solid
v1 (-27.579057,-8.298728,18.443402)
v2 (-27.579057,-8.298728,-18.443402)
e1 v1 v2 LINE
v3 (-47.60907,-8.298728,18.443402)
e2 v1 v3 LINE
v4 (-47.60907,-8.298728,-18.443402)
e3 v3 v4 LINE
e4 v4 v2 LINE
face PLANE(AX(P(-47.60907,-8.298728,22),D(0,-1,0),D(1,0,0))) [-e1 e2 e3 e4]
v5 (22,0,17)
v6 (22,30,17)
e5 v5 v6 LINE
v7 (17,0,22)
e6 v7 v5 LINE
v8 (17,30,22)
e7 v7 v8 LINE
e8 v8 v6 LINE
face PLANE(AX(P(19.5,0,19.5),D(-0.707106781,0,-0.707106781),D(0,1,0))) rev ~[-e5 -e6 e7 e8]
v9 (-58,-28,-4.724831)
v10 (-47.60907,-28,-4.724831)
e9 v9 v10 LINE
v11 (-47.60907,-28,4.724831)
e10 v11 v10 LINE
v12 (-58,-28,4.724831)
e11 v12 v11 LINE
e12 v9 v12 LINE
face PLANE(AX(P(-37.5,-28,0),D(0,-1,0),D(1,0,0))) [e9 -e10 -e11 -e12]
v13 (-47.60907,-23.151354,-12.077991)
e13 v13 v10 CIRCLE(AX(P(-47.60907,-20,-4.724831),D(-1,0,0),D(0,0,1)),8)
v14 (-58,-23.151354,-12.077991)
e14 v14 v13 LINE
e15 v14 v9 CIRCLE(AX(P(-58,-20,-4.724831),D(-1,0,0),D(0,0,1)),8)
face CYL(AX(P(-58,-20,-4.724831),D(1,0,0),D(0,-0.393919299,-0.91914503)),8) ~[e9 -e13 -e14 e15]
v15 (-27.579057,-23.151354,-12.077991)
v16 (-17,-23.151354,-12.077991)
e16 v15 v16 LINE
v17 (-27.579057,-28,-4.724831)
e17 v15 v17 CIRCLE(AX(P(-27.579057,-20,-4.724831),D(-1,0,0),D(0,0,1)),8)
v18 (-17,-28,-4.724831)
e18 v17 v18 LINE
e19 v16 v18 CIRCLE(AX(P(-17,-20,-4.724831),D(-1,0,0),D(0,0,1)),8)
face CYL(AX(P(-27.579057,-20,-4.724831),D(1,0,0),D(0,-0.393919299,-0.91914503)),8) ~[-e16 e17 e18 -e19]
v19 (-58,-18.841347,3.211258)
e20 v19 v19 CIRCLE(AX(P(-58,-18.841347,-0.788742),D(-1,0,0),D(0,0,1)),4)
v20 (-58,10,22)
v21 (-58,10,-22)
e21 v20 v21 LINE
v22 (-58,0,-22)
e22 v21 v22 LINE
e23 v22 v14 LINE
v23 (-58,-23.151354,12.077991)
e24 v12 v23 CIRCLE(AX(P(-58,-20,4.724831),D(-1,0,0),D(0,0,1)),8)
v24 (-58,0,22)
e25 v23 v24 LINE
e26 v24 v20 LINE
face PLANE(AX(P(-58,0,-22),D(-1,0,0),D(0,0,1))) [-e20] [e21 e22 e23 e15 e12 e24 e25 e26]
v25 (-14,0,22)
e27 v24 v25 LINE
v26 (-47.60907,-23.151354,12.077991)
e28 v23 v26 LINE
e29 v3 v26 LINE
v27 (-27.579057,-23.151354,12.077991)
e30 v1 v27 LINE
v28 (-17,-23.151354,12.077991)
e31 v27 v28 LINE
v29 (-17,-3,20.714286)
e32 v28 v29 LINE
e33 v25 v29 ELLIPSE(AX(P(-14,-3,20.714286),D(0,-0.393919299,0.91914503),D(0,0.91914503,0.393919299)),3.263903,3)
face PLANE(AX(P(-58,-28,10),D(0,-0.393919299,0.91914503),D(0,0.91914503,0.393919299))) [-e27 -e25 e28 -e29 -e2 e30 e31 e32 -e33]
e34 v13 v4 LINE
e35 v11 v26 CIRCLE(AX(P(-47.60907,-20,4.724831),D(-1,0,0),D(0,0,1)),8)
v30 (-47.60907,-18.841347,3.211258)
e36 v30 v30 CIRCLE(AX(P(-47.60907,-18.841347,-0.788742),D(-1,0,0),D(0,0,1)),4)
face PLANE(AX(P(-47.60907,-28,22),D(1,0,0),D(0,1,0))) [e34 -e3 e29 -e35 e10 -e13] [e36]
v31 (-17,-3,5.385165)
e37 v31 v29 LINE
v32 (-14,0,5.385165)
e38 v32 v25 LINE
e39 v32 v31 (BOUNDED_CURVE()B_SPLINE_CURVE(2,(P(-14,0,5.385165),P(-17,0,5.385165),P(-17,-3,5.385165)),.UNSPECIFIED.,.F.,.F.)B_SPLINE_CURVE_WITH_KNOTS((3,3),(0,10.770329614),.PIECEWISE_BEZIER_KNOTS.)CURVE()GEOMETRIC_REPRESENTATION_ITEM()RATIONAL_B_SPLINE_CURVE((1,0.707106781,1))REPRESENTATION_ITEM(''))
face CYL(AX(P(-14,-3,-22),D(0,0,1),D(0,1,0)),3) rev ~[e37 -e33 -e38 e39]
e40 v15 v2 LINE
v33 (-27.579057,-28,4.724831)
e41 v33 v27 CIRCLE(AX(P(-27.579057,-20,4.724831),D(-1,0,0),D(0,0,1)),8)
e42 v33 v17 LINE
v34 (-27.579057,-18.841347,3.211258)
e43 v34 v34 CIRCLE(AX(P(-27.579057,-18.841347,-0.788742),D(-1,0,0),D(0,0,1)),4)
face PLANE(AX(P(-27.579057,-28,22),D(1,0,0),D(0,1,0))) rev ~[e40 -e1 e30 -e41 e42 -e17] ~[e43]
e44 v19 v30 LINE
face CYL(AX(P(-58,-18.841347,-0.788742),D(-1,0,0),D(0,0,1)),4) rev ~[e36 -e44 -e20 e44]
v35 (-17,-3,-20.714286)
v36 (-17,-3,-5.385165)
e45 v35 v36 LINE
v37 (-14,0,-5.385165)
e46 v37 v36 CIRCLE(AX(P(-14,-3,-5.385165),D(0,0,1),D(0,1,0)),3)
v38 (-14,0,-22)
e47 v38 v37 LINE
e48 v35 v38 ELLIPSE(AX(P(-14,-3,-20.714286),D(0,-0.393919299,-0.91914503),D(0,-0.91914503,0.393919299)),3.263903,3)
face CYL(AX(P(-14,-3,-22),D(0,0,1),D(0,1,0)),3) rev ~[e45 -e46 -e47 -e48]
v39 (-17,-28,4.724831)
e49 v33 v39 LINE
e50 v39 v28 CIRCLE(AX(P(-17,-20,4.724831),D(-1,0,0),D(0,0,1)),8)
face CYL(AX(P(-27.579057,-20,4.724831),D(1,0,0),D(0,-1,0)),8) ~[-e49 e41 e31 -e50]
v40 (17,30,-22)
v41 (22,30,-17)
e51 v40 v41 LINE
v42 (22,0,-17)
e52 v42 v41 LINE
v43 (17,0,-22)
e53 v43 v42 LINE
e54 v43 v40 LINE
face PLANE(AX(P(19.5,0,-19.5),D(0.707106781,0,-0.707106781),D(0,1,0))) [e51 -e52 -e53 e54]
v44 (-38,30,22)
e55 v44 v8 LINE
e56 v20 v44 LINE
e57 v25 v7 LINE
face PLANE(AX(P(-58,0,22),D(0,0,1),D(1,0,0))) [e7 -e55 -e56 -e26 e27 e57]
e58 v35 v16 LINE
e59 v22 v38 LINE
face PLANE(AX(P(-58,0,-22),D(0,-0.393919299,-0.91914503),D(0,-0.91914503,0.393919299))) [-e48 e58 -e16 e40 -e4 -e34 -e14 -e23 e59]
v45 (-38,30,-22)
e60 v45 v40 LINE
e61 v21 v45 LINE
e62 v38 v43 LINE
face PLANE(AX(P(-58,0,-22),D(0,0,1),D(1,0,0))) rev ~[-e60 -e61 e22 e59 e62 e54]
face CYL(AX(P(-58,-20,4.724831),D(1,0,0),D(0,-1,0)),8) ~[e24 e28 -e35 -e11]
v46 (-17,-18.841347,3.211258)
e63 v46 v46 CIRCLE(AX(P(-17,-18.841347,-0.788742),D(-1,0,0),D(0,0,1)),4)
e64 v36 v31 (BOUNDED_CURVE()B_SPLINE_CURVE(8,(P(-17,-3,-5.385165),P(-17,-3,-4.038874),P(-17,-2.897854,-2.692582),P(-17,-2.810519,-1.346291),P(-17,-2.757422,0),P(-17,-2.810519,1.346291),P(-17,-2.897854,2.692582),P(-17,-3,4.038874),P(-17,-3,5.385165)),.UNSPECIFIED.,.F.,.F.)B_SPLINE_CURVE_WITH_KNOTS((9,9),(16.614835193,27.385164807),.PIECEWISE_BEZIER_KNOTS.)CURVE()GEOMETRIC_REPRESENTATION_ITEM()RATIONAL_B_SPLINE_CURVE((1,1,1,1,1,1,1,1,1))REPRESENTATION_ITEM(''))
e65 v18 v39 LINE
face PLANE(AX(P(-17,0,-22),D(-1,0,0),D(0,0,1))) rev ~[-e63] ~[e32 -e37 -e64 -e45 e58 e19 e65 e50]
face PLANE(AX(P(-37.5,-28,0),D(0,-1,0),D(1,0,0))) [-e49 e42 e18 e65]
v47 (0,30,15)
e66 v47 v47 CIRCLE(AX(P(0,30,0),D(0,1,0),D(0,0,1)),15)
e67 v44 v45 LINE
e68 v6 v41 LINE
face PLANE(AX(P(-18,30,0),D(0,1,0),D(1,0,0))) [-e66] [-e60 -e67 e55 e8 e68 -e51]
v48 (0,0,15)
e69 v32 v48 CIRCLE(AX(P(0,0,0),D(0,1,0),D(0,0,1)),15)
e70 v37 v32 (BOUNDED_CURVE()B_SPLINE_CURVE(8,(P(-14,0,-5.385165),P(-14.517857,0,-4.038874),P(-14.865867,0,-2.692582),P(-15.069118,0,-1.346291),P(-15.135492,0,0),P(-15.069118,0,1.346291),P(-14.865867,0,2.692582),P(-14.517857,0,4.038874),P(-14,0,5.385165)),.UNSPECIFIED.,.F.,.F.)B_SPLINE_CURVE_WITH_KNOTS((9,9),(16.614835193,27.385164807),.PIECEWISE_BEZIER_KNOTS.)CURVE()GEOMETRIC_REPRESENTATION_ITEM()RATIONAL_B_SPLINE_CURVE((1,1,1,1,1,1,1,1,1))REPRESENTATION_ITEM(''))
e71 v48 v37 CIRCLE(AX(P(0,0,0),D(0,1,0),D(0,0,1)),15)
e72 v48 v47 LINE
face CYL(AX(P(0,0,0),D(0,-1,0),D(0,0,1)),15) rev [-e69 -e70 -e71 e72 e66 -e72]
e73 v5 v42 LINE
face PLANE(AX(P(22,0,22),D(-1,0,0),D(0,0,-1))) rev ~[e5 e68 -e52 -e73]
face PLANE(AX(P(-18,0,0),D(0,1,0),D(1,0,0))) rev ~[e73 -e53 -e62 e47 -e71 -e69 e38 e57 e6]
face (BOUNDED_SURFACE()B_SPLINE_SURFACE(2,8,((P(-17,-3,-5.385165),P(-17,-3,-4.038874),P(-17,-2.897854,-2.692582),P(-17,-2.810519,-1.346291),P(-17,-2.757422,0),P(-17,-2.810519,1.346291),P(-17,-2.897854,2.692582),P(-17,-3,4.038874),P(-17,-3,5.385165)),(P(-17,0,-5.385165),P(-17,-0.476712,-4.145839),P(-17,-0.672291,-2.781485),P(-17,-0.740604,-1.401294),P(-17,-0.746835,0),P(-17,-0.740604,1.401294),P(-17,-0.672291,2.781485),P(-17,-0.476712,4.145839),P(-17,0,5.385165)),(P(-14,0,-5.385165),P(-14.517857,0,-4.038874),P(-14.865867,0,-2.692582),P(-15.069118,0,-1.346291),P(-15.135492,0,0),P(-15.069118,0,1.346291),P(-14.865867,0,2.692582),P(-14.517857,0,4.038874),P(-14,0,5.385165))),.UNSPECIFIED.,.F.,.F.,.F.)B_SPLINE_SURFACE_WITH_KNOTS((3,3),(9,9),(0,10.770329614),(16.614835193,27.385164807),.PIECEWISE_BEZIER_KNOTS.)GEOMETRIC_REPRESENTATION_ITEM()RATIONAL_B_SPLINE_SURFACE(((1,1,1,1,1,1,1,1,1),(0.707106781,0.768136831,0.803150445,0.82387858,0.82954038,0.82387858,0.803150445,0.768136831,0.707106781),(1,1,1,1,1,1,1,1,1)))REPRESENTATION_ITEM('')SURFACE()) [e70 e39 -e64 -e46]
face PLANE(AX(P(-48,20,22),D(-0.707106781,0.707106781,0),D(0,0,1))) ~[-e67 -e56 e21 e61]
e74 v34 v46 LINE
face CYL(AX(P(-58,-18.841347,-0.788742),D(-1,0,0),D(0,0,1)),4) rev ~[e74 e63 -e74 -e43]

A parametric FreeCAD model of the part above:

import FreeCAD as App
import Part
import Sketcher

V = App.Vector


def edges_at(feature, points):
    """Names of the edges that pass closest to the given points."""
    edges = feature.Shape.Edges
    near = lambda p: min(range(len(edges)), key=lambda i: edges[i].distToShape(Part.Vertex(*p))[0])
    return sorted({f"Edge{near(p) + 1}" for p in points})


def add_polygon(sketch, points):
    """Adds a closed chain of lines whose ends are joined by coincident constraints."""
    first, n = sketch.GeometryCount, len(points)
    for a, b in zip(points, points[1:] + points[:1]):
        sketch.addGeometry(Part.LineSegment(App.Vector(*a, 0), App.Vector(*b, 0)), False)
    for i in range(n):
        sketch.addConstraint(Sketcher.Constraint("Coincident", first + i, 2, first + (i + 1) % n, 1))

doc = App.newDocument("Part")
body = doc.addObject("PartDesign::Body", "Body")

# Sketch on XZ plane
sketch1 = body.newObject("Sketcher::SketchObject", "Sketch")
sketch1.AttachmentSupport = (doc.getObject("XZ_Plane"), [""])
sketch1.MapMode = "FlatFace"
add_polygon(sketch1, [(-58, -22), (-58, 22), (22, 22), (22, -22)])  # lines 0-3
sketch1.addGeometry(Part.Circle(V(0, 0, 0), V(0, 0, 1), 15), False)  # 4
sketch1.addConstraint(Sketcher.Constraint("Vertical", 0))
sketch1.addConstraint(Sketcher.Constraint("Horizontal", 1))
sketch1.addConstraint(Sketcher.Constraint("Vertical", 2))
sketch1.addConstraint(Sketcher.Constraint("Horizontal", 3))
sketch1.addConstraint(Sketcher.Constraint("Coincident", 4, 3, -1, 1))
sketch1.addConstraint(Sketcher.Constraint("Diameter", 4, 30.0))
sketch1.addConstraint(Sketcher.Constraint("DistanceX", 1, 1, 1, 2, 80.0))
sketch1.addConstraint(Sketcher.Constraint("DistanceY", 0, 1, 0, 2, 44.0))
sketch1.addConstraint(Sketcher.Constraint("DistanceX", 0, 2, -1, 1, 58.0))
sketch1.addConstraint(Sketcher.Constraint("DistanceY", -1, 1, 0, 2, 22.0))
pad1 = body.newObject("PartDesign::Pad", "Pad")
pad1.Profile = sketch1
pad1.Length = 30
pad1.Reversed = True
doc.recompute()

chamfer = body.newObject("PartDesign::Chamfer", "Chamfer")
chamfer.Base = (pad1, edges_at(pad1, [(-58, 30, 0)]))
chamfer.Size = 20

# Sketch on XZ plane
sketch2 = body.newObject("Sketcher::SketchObject", "Sketch001")
sketch2.AttachmentSupport = (doc.getObject("XZ_Plane"), [""])
sketch2.MapMode = "FlatFace"
add_polygon(sketch2, [(-58, 22), (-58, -22), (-17, -22), (-17, 22)])  # lines 0-3
sketch2.addConstraint(Sketcher.Constraint("Vertical", 0))
sketch2.addConstraint(Sketcher.Constraint("Horizontal", 1))
sketch2.addConstraint(Sketcher.Constraint("Vertical", 2))
sketch2.addConstraint(Sketcher.Constraint("Horizontal", 3))
sketch2.addConstraint(Sketcher.Constraint("DistanceX", 1, 1, 1, 2, 41.0))
sketch2.addConstraint(Sketcher.Constraint("DistanceY", 0, 2, 0, 1, 44.0))
sketch2.addConstraint(Sketcher.Constraint("DistanceX", 0, 2, -1, 1, 58.0))
sketch2.addConstraint(Sketcher.Constraint("DistanceY", 0, 2, -1, 1, 22.0))
pad2 = body.newObject("PartDesign::Pad", "Pad001")
pad2.Profile = sketch2
pad2.Length = 28

# Sketch on YZ plane
sketch3 = body.newObject("Sketcher::SketchObject", "Sketch002")
sketch3.AttachmentSupport = (doc.getObject("YZ_Plane"), [""])
sketch3.MapMode = "FlatFace"
sketch3.AttachmentOffset = App.Placement(V(0, 0, -58), App.Rotation())
sketch3.addGeometry(Part.Circle(V(-18.841347, -0.788742, 0), V(0, 0, 1), 4), False)
sketch3.addConstraint(Sketcher.Constraint("Diameter", 0, 8.0))
sketch3.addConstraint(Sketcher.Constraint("DistanceX", 0, 3, -1, 1, 18.841347))
sketch3.addConstraint(Sketcher.Constraint("DistanceY", 0, 3, -1, 1, 0.788742))
pocket1 = body.newObject("PartDesign::Pocket", "Pocket")
pocket1.Profile = sketch3
pocket1.Type = "ThroughAll"
pocket1.Reversed = True

# Sketch on XY plane
sketch4 = body.newObject("Sketcher::SketchObject", "Sketch003")
sketch4.AttachmentSupport = (doc.getObject("XY_Plane"), [""])
sketch4.MapMode = "FlatFace"
sketch4.AttachmentOffset = App.Placement(V(0, 0, 22), App.Rotation())
add_polygon(sketch4, [(-47.60907, -8.298728), (-47.60907, -28), (-27.579057, -28), (-27.579057, -8.298728)])  # lines 0-3
sketch4.addConstraint(Sketcher.Constraint("Vertical", 0))
sketch4.addConstraint(Sketcher.Constraint("Horizontal", 1))
sketch4.addConstraint(Sketcher.Constraint("Vertical", 2))
sketch4.addConstraint(Sketcher.Constraint("Horizontal", 3))
sketch4.addConstraint(Sketcher.Constraint("DistanceY", 0, 2, -1, 1, 28.0))
sketch4.addConstraint(Sketcher.Constraint("DistanceY", 0, 2, 0, 1, 19.701272))
sketch4.addConstraint(Sketcher.Constraint("DistanceX", 1, 1, 1, 2, 20.030014))
sketch4.addConstraint(Sketcher.Constraint("DistanceX", 0, 2, -1, 1, 47.60907))
pocket2 = body.newObject("PartDesign::Pocket", "Pocket001")
pocket2.Profile = sketch4
pocket2.Type = "ThroughAll"
doc.recompute()

chamfer2 = body.newObject("PartDesign::Chamfer", "Chamfer001")
chamfer2.Base = (pocket2, edges_at(pocket2, [(22, 15, -22), (22, 15, 22)]))
chamfer2.Size = 5
doc.recompute()

fillet = body.newObject("PartDesign::Fillet", "Fillet")
fillet.Base = (chamfer2, edges_at(chamfer2, [(-17, 0, 0)]))
fillet.Radius = 3

# Sketch on YZ plane
sketch5 = body.newObject("Sketcher::SketchObject", "Sketch004")
sketch5.AttachmentSupport = (doc.getObject("YZ_Plane"), [""])
sketch5.MapMode = "FlatFace"
sketch5.AttachmentOffset = App.Placement(V(0, 0, -58), App.Rotation())
add_polygon(sketch5, [(-28, -10), (0, -22), (-28, -22)])  # lines 0-2
add_polygon(sketch5, [(-28, 10), (-28, 22), (0, 22)])  # lines 3-5
sketch5.addConstraint(Sketcher.Constraint("Horizontal", 1))
sketch5.addConstraint(Sketcher.Constraint("Vertical", 2))
sketch5.addConstraint(Sketcher.Constraint("Vertical", 3))
sketch5.addConstraint(Sketcher.Constraint("Horizontal", 4))
sketch5.addConstraint(Sketcher.Constraint("Symmetric", 0, 2, 4, 2, -1, 1))
sketch5.addConstraint(Sketcher.Constraint("Symmetric", 2, 2, 5, 2, -1))
sketch5.addConstraint(Sketcher.Constraint("PointOnObject", 0, 2, -2))
sketch5.addConstraint(Sketcher.Constraint("DistanceX", 1, 2, 1, 1, 28.0))
sketch5.addConstraint(Sketcher.Constraint("DistanceY", 2, 1, 2, 2, 12.0))
sketch5.addConstraint(Sketcher.Constraint("DistanceY", 0, 2, -1, 1, 22.0))
pocket3 = body.newObject("PartDesign::Pocket", "Pocket002")
pocket3.Profile = sketch5
pocket3.Type = "ThroughAll"
pocket3.Reversed = True
doc.recompute()

fillet2 = body.newObject("PartDesign::Fillet", "Fillet001")
fillet2.Base = (pocket3, edges_at(pocket3, [
    (-22.29, -28, -10),
    (-52.805, -28, -10),
    (-52.805, -28, 10),
    (-22.29, -28, 10),
]))
fillet2.Radius = 8

doc.recompute()
